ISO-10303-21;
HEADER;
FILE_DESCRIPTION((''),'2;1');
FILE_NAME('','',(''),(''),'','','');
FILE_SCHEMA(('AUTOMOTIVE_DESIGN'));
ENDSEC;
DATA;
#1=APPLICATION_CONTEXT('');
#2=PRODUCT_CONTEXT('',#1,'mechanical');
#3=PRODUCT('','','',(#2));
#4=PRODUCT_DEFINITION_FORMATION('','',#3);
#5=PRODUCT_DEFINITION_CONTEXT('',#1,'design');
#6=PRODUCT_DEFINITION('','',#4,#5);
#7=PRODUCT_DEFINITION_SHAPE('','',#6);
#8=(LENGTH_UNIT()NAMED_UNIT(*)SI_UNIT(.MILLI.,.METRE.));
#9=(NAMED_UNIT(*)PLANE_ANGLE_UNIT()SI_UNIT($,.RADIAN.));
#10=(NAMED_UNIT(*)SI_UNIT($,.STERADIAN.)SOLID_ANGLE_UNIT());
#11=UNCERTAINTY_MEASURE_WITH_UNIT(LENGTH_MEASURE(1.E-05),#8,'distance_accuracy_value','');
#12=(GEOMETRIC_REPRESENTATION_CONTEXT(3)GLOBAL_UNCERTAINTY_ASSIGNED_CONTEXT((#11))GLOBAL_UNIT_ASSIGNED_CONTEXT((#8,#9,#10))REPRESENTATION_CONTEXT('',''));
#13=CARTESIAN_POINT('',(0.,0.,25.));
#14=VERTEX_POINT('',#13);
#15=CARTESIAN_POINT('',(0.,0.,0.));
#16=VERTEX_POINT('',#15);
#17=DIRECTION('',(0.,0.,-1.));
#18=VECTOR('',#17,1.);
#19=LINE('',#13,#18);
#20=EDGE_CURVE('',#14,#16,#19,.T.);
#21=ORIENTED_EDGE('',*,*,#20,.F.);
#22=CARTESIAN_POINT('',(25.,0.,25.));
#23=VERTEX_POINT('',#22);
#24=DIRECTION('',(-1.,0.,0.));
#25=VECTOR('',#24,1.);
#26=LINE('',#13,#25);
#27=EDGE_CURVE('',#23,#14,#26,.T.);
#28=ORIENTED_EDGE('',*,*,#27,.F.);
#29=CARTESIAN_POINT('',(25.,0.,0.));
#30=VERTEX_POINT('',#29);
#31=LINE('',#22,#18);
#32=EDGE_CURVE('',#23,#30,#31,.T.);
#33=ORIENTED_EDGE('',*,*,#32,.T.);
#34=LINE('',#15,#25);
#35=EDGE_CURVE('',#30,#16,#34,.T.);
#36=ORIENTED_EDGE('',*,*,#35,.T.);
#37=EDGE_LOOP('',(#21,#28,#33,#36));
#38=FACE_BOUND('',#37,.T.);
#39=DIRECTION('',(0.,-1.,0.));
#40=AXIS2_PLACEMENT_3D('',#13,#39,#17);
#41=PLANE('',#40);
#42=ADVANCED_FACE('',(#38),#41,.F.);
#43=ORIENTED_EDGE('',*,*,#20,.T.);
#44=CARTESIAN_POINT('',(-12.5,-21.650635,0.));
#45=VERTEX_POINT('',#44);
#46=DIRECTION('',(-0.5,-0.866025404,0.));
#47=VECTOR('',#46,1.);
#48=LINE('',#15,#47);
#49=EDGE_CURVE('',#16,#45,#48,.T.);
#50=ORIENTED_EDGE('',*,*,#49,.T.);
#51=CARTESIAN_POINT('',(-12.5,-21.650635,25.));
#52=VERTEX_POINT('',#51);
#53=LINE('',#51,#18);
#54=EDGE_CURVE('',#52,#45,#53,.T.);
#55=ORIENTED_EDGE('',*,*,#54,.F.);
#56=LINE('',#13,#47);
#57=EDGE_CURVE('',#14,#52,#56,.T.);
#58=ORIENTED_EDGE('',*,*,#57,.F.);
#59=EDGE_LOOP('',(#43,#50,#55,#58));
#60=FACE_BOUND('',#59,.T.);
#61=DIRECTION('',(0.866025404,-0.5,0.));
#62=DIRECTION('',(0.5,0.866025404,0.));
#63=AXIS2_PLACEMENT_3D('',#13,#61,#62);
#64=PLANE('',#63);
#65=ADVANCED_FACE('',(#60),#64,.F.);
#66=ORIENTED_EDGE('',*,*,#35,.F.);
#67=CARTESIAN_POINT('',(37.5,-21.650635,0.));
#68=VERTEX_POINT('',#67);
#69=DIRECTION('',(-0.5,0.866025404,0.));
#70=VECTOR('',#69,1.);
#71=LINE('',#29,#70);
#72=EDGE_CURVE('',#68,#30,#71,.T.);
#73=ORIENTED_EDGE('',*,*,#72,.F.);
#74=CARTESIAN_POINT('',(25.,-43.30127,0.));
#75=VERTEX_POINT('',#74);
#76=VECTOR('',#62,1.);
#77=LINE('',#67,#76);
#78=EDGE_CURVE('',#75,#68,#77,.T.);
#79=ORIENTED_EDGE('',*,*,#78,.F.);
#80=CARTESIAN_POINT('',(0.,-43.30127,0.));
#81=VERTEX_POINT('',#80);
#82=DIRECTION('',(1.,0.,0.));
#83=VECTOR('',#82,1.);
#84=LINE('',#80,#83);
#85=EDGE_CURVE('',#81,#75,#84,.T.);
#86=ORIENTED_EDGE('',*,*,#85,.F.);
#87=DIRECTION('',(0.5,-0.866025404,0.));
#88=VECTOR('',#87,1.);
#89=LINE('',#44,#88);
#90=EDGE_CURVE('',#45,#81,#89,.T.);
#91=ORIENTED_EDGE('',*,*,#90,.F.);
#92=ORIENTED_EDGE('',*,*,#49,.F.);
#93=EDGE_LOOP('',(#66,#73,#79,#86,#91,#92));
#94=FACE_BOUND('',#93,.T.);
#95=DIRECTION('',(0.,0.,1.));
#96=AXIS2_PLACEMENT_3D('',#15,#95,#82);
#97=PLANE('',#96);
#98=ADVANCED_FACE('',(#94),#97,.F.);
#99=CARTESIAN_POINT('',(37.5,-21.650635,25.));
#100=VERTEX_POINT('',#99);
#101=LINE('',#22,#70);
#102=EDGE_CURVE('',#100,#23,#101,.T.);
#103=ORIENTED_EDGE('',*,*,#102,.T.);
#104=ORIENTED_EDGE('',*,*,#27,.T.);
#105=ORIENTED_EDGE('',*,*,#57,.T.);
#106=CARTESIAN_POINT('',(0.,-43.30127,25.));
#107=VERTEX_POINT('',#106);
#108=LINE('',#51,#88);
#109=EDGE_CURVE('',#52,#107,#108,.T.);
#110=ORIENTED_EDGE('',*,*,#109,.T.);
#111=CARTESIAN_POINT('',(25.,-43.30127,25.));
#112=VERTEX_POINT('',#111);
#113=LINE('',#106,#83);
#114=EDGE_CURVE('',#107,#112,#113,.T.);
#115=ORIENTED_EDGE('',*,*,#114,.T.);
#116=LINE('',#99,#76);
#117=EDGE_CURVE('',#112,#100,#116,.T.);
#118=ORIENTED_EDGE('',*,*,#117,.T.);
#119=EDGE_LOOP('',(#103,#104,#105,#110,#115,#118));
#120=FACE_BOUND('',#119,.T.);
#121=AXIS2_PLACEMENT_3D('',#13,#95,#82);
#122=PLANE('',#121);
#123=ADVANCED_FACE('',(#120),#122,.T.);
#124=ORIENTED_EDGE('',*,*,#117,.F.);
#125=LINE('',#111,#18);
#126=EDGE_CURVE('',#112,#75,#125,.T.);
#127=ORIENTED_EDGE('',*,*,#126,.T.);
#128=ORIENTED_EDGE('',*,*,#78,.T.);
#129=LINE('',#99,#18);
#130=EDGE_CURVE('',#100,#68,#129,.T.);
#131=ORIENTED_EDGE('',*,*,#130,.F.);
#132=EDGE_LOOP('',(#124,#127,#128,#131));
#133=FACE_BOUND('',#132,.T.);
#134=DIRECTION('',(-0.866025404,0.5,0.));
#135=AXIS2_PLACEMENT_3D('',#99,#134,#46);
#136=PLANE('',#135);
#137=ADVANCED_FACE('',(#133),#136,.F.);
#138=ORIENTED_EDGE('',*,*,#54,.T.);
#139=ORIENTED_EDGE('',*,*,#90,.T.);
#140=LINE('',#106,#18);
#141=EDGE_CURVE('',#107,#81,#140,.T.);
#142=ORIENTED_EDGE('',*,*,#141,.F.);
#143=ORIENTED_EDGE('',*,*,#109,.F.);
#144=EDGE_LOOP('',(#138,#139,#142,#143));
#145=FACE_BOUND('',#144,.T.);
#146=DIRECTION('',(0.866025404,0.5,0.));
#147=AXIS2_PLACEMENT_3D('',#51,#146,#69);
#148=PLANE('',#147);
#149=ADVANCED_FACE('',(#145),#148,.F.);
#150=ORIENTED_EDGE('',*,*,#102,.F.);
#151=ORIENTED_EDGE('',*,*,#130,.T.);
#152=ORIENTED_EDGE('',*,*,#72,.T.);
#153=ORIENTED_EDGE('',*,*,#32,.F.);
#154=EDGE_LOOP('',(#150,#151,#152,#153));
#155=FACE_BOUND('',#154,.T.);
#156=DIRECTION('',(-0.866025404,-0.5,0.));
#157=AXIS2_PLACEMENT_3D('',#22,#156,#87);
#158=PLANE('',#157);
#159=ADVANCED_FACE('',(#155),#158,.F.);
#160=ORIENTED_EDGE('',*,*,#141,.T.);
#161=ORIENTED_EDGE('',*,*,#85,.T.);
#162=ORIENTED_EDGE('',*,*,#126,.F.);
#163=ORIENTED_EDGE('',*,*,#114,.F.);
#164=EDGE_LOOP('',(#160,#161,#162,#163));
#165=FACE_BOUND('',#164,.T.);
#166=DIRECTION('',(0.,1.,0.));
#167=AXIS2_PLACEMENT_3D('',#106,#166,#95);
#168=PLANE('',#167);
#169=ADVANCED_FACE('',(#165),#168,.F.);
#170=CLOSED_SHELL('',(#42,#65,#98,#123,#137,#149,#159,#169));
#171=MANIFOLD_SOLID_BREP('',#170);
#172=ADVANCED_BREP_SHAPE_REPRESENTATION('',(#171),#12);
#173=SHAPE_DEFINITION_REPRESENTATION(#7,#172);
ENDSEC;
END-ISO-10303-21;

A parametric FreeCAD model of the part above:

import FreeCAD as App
import Part
import Sketcher
from FreeCAD import Vector
Q = App.Units.Quantity

doc = App.newDocument("Part")
body = doc.addObject("PartDesign::Body", "Body")

# Sketch on XY plane
sketch1 = body.newObject("Sketcher::SketchObject", "Sketch")
sketch1.AttachmentSupport = (doc.getObject("XY_Plane"), [""])
sketch1.MapMode = "FlatFace"
sketch1.addGeometry(Part.LineSegment(Vector(25, 0, 0), Vector(0, 0, 0)), False)
sketch1.addGeometry(Part.LineSegment(Vector(0, 0, 0), Vector(-12, -22, 0)), False)
sketch1.addGeometry(Part.LineSegment(Vector(-12, -22, 0), Vector(0, -43, 0)), False)
sketch1.addGeometry(Part.LineSegment(Vector(0, -43, 0), Vector(25, -43, 0)), False)
sketch1.addGeometry(Part.LineSegment(Vector(25, -43, 0), Vector(38, -22, 0)), False)
sketch1.addGeometry(Part.LineSegment(Vector(38, -22, 0), Vector(25, 0, 0)), False)
sketch1.addConstraint(Sketcher.Constraint("Coincident", 0, 2, 1, 1))
sketch1.addConstraint(Sketcher.Constraint("Coincident", 1, 2, 2, 1))
sketch1.addConstraint(Sketcher.Constraint("Coincident", 2, 2, 3, 1))
sketch1.addConstraint(Sketcher.Constraint("Coincident", 3, 2, 4, 1))
sketch1.addConstraint(Sketcher.Constraint("Coincident", 4, 2, 5, 1))
sketch1.addConstraint(Sketcher.Constraint("Coincident", 5, 2, 0, 1))
sketch1.addConstraint(Sketcher.Constraint("Horizontal", 0))
sketch1.addConstraint(Sketcher.Constraint("Horizontal", 3))
sketch1.addConstraint(Sketcher.Constraint("Coincident", 0, 2, -1, 1))
sketch1.addConstraint(Sketcher.Constraint("PointOnObject", 2, 2, -2))
sketch1.addConstraint(Sketcher.Constraint("Parallel", 1, 4))
sketch1.addConstraint(Sketcher.Constraint("Parallel", 2, 5))
sketch1.addConstraint(Sketcher.Constraint("Horizontal", 1, 2, 4, 2))
sketch1.addConstraint(Sketcher.Constraint("Vertical", 3, 2, 5, 2))
sketch1.addConstraint(Sketcher.Constraint("DistanceX", 0, 2, 0, 1, Q("25 mm")))
sketch1.addConstraint(Sketcher.Constraint("Angle", 1, Q("-120 deg")))
sketch1.addConstraint(Sketcher.Constraint("Distance", 1, Q("25 mm")))
pad1 = body.newObject("PartDesign::Pad", "Pad")
pad1.Profile = sketch1
pad1.Length = 25

doc.recompute()
